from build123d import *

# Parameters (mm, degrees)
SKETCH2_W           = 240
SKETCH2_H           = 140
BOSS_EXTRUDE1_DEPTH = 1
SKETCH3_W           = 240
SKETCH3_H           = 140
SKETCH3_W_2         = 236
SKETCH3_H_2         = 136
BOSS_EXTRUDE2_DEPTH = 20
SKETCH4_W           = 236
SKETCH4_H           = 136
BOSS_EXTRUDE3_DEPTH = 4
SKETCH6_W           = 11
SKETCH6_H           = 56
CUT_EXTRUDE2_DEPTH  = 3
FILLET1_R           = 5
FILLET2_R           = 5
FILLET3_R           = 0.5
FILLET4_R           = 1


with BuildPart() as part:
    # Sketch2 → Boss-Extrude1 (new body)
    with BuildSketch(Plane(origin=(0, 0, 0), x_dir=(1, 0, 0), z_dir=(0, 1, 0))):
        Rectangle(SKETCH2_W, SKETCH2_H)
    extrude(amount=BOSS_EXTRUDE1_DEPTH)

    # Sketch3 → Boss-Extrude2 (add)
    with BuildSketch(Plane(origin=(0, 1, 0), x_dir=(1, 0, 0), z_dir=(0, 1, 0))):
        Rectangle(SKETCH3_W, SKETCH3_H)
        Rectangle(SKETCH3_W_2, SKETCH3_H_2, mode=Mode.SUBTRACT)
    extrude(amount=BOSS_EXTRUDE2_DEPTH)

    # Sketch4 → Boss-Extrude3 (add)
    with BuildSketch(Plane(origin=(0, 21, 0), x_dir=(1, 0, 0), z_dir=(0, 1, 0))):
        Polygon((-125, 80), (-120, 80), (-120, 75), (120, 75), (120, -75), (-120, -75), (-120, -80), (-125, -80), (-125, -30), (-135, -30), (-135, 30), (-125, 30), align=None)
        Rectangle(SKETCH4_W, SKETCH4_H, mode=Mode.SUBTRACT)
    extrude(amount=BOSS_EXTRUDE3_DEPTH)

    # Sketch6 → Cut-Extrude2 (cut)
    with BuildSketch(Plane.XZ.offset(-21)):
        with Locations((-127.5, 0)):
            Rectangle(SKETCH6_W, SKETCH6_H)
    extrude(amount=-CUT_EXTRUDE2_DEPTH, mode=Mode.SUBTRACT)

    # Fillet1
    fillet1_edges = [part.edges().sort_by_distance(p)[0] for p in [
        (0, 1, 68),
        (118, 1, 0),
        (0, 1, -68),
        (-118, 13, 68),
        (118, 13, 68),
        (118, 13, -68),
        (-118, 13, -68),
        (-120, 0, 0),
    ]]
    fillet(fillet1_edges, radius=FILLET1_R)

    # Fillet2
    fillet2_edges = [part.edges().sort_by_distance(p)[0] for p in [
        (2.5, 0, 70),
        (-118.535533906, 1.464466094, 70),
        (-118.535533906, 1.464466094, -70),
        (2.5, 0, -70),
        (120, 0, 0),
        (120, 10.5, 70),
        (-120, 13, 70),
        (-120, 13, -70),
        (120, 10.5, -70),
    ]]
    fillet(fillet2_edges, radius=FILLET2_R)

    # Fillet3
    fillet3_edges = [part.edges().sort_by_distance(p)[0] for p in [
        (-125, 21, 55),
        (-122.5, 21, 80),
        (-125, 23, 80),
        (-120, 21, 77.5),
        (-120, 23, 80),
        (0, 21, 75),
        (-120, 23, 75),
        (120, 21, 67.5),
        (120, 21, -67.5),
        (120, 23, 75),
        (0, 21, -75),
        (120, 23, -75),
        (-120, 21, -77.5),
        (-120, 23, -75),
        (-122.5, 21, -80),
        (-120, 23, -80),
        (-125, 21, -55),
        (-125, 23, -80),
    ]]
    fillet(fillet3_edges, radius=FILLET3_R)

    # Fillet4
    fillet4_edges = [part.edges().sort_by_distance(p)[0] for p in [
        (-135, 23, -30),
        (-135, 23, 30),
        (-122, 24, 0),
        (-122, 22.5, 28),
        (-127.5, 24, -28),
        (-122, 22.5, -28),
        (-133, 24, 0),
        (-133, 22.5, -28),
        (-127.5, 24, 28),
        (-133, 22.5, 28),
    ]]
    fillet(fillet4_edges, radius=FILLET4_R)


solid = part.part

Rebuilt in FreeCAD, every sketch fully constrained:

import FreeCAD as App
import Part
import Sketcher


def edges_at(feature, points):
    """Names of the edges that pass closest to the given points."""
    edges = feature.Shape.Edges
    near = lambda p: min(range(len(edges)), key=lambda i: edges[i].distToShape(Part.Vertex(*p))[0])
    return sorted({f"Edge{near(p) + 1}" for p in points})

doc = App.newDocument("Part")
body = doc.addObject("PartDesign::Body", "Body")

sketch1 = body.newObject("Sketcher::SketchObject", "Sketch")
sketch1.AttachmentSupport = (doc.getObject("XZ_Plane"), [""])
sketch1.MapMode = "FlatFace"
sketch1.addGeometry(Part.LineSegment(App.Vector(-120, -70, 0), App.Vector(-120, 70, 0)), False)
sketch1.addGeometry(Part.LineSegment(App.Vector(-120, 70, 0), App.Vector(120, 70, 0)), False)
sketch1.addGeometry(Part.LineSegment(App.Vector(120, 70, 0), App.Vector(120, -70, 0)), False)
sketch1.addGeometry(Part.LineSegment(App.Vector(120, -70, 0), App.Vector(-120, -70, 0)), False)
sketch1.addConstraint(Sketcher.Constraint("Coincident", 0, 2, 1, 1))
sketch1.addConstraint(Sketcher.Constraint("Coincident", 1, 2, 2, 1))
sketch1.addConstraint(Sketcher.Constraint("Coincident", 2, 2, 3, 1))
sketch1.addConstraint(Sketcher.Constraint("Coincident", 3, 2, 0, 1))
sketch1.addConstraint(Sketcher.Constraint("Vertical", 0))
sketch1.addConstraint(Sketcher.Constraint("Horizontal", 1))
sketch1.addConstraint(Sketcher.Constraint("Vertical", 2))
sketch1.addConstraint(Sketcher.Constraint("Horizontal", 3))
sketch1.addConstraint(Sketcher.Constraint("Symmetric", 0, 2, 2, 2, -1, 1))
sketch1.addConstraint(Sketcher.Constraint("DistanceX", 1, 1, 1, 2, 240.0))
sketch1.addConstraint(Sketcher.Constraint("DistanceY", 0, 1, 0, 2, 140.0))
pad1 = body.newObject("PartDesign::Pad", "Pad")
pad1.Profile = sketch1
pad1.Length = 1
pad1.Reversed = True

sketch2 = body.newObject("Sketcher::SketchObject", "Sketch001")
sketch2.AttachmentSupport = (doc.getObject("XZ_Plane"), [""])
sketch2.MapMode = "FlatFace"
sketch2.AttachmentOffset = App.Placement(App.Vector(0, 0, -1), App.Rotation())
sketch2.addGeometry(Part.LineSegment(App.Vector(-120, -70, 0), App.Vector(-120, 70, 0)), False)
sketch2.addGeometry(Part.LineSegment(App.Vector(-120, 70, 0), App.Vector(120, 70, 0)), False)
sketch2.addGeometry(Part.LineSegment(App.Vector(120, 70, 0), App.Vector(120, -70, 0)), False)
sketch2.addGeometry(Part.LineSegment(App.Vector(120, -70, 0), App.Vector(-120, -70, 0)), False)
sketch2.addGeometry(Part.LineSegment(App.Vector(118, 68, 0), App.Vector(-118, 68, 0)), False)
sketch2.addGeometry(Part.LineSegment(App.Vector(-118, 68, 0), App.Vector(-118, -68, 0)), False)
sketch2.addGeometry(Part.LineSegment(App.Vector(-118, -68, 0), App.Vector(118, -68, 0)), False)
sketch2.addGeometry(Part.LineSegment(App.Vector(118, -68, 0), App.Vector(118, 68, 0)), False)
sketch2.addConstraint(Sketcher.Constraint("Coincident", 0, 2, 1, 1))
sketch2.addConstraint(Sketcher.Constraint("Coincident", 1, 2, 2, 1))
sketch2.addConstraint(Sketcher.Constraint("Coincident", 2, 2, 3, 1))
sketch2.addConstraint(Sketcher.Constraint("Coincident", 3, 2, 0, 1))
sketch2.addConstraint(Sketcher.Constraint("Coincident", 4, 2, 5, 1))
sketch2.addConstraint(Sketcher.Constraint("Coincident", 5, 2, 6, 1))
sketch2.addConstraint(Sketcher.Constraint("Coincident", 6, 2, 7, 1))
sketch2.addConstraint(Sketcher.Constraint("Coincident", 7, 2, 4, 1))
sketch2.addConstraint(Sketcher.Constraint("Vertical", 0))
sketch2.addConstraint(Sketcher.Constraint("Horizontal", 1))
sketch2.addConstraint(Sketcher.Constraint("Vertical", 2))
sketch2.addConstraint(Sketcher.Constraint("Horizontal", 3))
sketch2.addConstraint(Sketcher.Constraint("Horizontal", 4))
sketch2.addConstraint(Sketcher.Constraint("Vertical", 5))
sketch2.addConstraint(Sketcher.Constraint("Horizontal", 6))
sketch2.addConstraint(Sketcher.Constraint("Vertical", 7))
sketch2.addConstraint(Sketcher.Constraint("Symmetric", 0, 2, 2, 2, -1, 1))
sketch2.addConstraint(Sketcher.Constraint("Symmetric", 4, 2, 6, 2, -1, 1))
sketch2.addConstraint(Sketcher.Constraint("DistanceX", 1, 1, 1, 2, 240.0))
sketch2.addConstraint(Sketcher.Constraint("DistanceX", 4, 2, 4, 1, 236.0))
sketch2.addConstraint(Sketcher.Constraint("DistanceY", 0, 1, 0, 2, 140.0))
sketch2.addConstraint(Sketcher.Constraint("DistanceY", 5, 2, 5, 1, 136.0))
pad2 = body.newObject("PartDesign::Pad", "Pad001")
pad2.Profile = sketch2
pad2.Length = 20
pad2.Reversed = True

sketch3 = body.newObject("Sketcher::SketchObject", "Sketch002")
sketch3.AttachmentSupport = (doc.getObject("XZ_Plane"), [""])
sketch3.MapMode = "FlatFace"
sketch3.AttachmentOffset = App.Placement(App.Vector(0, 0, -21), App.Rotation())
sketch3.addGeometry(Part.LineSegment(App.Vector(-120, -80, 0), App.Vector(-125, -80, 0)), False)
sketch3.addGeometry(Part.LineSegment(App.Vector(-125, -80, 0), App.Vector(-125, -30, 0)), False)
sketch3.addGeometry(Part.LineSegment(App.Vector(-125, -30, 0), App.Vector(-135, -30, 0)), False)
sketch3.addGeometry(Part.LineSegment(App.Vector(-135, -30, 0), App.Vector(-135, 30, 0)), False)
sketch3.addGeometry(Part.LineSegment(App.Vector(-135, 30, 0), App.Vector(-125, 30, 0)), False)
sketch3.addGeometry(Part.LineSegment(App.Vector(-125, 30, 0), App.Vector(-125, 80, 0)), False)
sketch3.addGeometry(Part.LineSegment(App.Vector(-125, 80, 0), App.Vector(-120, 80, 0)), False)
sketch3.addGeometry(Part.LineSegment(App.Vector(-120, 80, 0), App.Vector(-120, 75, 0)), False)
sketch3.addGeometry(Part.LineSegment(App.Vector(-120, 75, 0), App.Vector(120, 75, 0)), False)
sketch3.addGeometry(Part.LineSegment(App.Vector(120, 75, 0), App.Vector(120, -75, 0)), False)
sketch3.addGeometry(Part.LineSegment(App.Vector(120, -75, 0), App.Vector(-120, -75, 0)), False)
sketch3.addGeometry(Part.LineSegment(App.Vector(-120, -75, 0), App.Vector(-120, -80, 0)), False)
sketch3.addGeometry(Part.LineSegment(App.Vector(-118, 68, 0), App.Vector(-118, -68, 0)), False)
sketch3.addGeometry(Part.LineSegment(App.Vector(-118, -68, 0), App.Vector(118, -68, 0)), False)
sketch3.addGeometry(Part.LineSegment(App.Vector(118, -68, 0), App.Vector(118, 68, 0)), False)
sketch3.addGeometry(Part.LineSegment(App.Vector(118, 68, 0), App.Vector(-118, 68, 0)), False)
sketch3.addConstraint(Sketcher.Constraint("Coincident", 0, 2, 1, 1))
sketch3.addConstraint(Sketcher.Constraint("Coincident", 1, 2, 2, 1))
sketch3.addConstraint(Sketcher.Constraint("Coincident", 2, 2, 3, 1))
sketch3.addConstraint(Sketcher.Constraint("Coincident", 3, 2, 4, 1))
sketch3.addConstraint(Sketcher.Constraint("Coincident", 4, 2, 5, 1))
sketch3.addConstraint(Sketcher.Constraint("Coincident", 5, 2, 6, 1))
sketch3.addConstraint(Sketcher.Constraint("Coincident", 6, 2, 7, 1))
sketch3.addConstraint(Sketcher.Constraint("Coincident", 7, 2, 8, 1))
sketch3.addConstraint(Sketcher.Constraint("Coincident", 8, 2, 9, 1))
sketch3.addConstraint(Sketcher.Constraint("Coincident", 9, 2, 10, 1))
sketch3.addConstraint(Sketcher.Constraint("Coincident", 10, 2, 11, 1))
sketch3.addConstraint(Sketcher.Constraint("Coincident", 11, 2, 0, 1))
sketch3.addConstraint(Sketcher.Constraint("Coincident", 12, 2, 13, 1))
sketch3.addConstraint(Sketcher.Constraint("Coincident", 13, 2, 14, 1))
sketch3.addConstraint(Sketcher.Constraint("Coincident", 14, 2, 15, 1))
sketch3.addConstraint(Sketcher.Constraint("Coincident", 15, 2, 12, 1))
sketch3.addConstraint(Sketcher.Constraint("Horizontal", 0))
sketch3.addConstraint(Sketcher.Constraint("Vertical", 1))
sketch3.addConstraint(Sketcher.Constraint("Horizontal", 2))
sketch3.addConstraint(Sketcher.Constraint("Vertical", 3))
sketch3.addConstraint(Sketcher.Constraint("Horizontal", 4))
sketch3.addConstraint(Sketcher.Constraint("Vertical", 5))
sketch3.addConstraint(Sketcher.Constraint("Horizontal", 6))
sketch3.addConstraint(Sketcher.Constraint("Vertical", 7))
sketch3.addConstraint(Sketcher.Constraint("Horizontal", 8))
sketch3.addConstraint(Sketcher.Constraint("Vertical", 9))
sketch3.addConstraint(Sketcher.Constraint("Horizontal", 10))
sketch3.addConstraint(Sketcher.Constraint("Vertical", 11))
sketch3.addConstraint(Sketcher.Constraint("Vertical", 12))
sketch3.addConstraint(Sketcher.Constraint("Horizontal", 13))
sketch3.addConstraint(Sketcher.Constraint("Vertical", 14))
sketch3.addConstraint(Sketcher.Constraint("Horizontal", 15))
sketch3.addConstraint(Sketcher.Constraint("Symmetric", 7, 2, 9, 2, -1, 1))
sketch3.addConstraint(Sketcher.Constraint("Symmetric", 12, 2, 14, 2, -1, 1))
sketch3.addConstraint(Sketcher.Constraint("Symmetric", 1, 2, 4, 2, -1))
sketch3.addConstraint(Sketcher.Constraint("Symmetric", 6, 2, 11, 2, -1))
sketch3.addConstraint(Sketcher.Constraint("Equal", 6, 7))
sketch3.addConstraint(Sketcher.Constraint("DistanceX", 0, 2, 0, 1, 5.0))
sketch3.addConstraint(Sketcher.Constraint("DistanceX", 2, 2, 2, 1, 10.0))
sketch3.addConstraint(Sketcher.Constraint("DistanceX", 8, 1, 8, 2, 240.0))
sketch3.addConstraint(Sketcher.Constraint("DistanceX", 13, 1, 13, 2, 236.0))
sketch3.addConstraint(Sketcher.Constraint("DistanceY", 1, 1, 1, 2, 50.0))
sketch3.addConstraint(Sketcher.Constraint("DistanceY", 3, 1, 3, 2, 60.0))
sketch3.addConstraint(Sketcher.Constraint("DistanceY", 12, 2, 12, 1, 136.0))
pad3 = body.newObject("PartDesign::Pad", "Pad002")
pad3.Profile = sketch3
pad3.Length = 4
pad3.Reversed = True

sketch4 = body.newObject("Sketcher::SketchObject", "Sketch003")
sketch4.AttachmentSupport = (doc.getObject("XZ_Plane"), [""])
sketch4.MapMode = "FlatFace"
sketch4.AttachmentOffset = App.Placement(App.Vector(0, 0, -21), App.Rotation())
sketch4.addGeometry(Part.LineSegment(App.Vector(-133, 28, 0), App.Vector(-133, -28, 0)), False)
sketch4.addGeometry(Part.LineSegment(App.Vector(-133, -28, 0), App.Vector(-122, -28, 0)), False)
sketch4.addGeometry(Part.LineSegment(App.Vector(-122, -28, 0), App.Vector(-122, 28, 0)), False)
sketch4.addGeometry(Part.LineSegment(App.Vector(-122, 28, 0), App.Vector(-133, 28, 0)), False)
sketch4.addConstraint(Sketcher.Constraint("Coincident", 0, 2, 1, 1))
sketch4.addConstraint(Sketcher.Constraint("Coincident", 1, 2, 2, 1))
sketch4.addConstraint(Sketcher.Constraint("Coincident", 2, 2, 3, 1))
sketch4.addConstraint(Sketcher.Constraint("Coincident", 3, 2, 0, 1))
sketch4.addConstraint(Sketcher.Constraint("Vertical", 0))
sketch4.addConstraint(Sketcher.Constraint("Horizontal", 1))
sketch4.addConstraint(Sketcher.Constraint("Vertical", 2))
sketch4.addConstraint(Sketcher.Constraint("Horizontal", 3))
sketch4.addConstraint(Sketcher.Constraint("DistanceX", 1, 1, 1, 2, 11.0))
sketch4.addConstraint(Sketcher.Constraint("DistanceY", 0, 2, 0, 1, 56.0))
sketch4.addConstraint(Sketcher.Constraint("DistanceX", 0, 2, -1, 1, 133.0))
sketch4.addConstraint(Sketcher.Constraint("DistanceY", 0, 2, -1, 1, 28.0))
pocket1 = body.newObject("PartDesign::Pocket", "Pocket")
pocket1.Profile = sketch4
pocket1.Length = 3
doc.recompute()

fillet = body.newObject("PartDesign::Fillet", "Fillet")
fillet.Base = (pocket1, edges_at(pocket1, [
    (0, 1, 68),
    (118, 1, 0),
    (0, 1, -68),
    (-118, 13, 68),
    (118, 13, 68),
    (118, 13, -68),
    (-118, 13, -68),
    (-120, 0, 0),
]))
fillet.Radius = 5
doc.recompute()

fillet2 = body.newObject("PartDesign::Fillet", "Fillet001")
fillet2.Base = (fillet, edges_at(fillet, [
    (2.5, 0, 70),
    (-118.536, 1.464, 70),
    (-118.536, 1.464, -70),
    (2.5, 0, -70),
    (120, 0, 0),
    (120, 10.5, 70),
    (-120, 13, 70),
    (-120, 13, -70),
    (120, 10.5, -70),
]))
fillet2.Radius = 5
doc.recompute()

fillet3 = body.newObject("PartDesign::Fillet", "Fillet002")
fillet3.Base = (fillet2, edges_at(fillet2, [
    (-125, 21, 55),
    (-122.5, 21, 80),
    (-125, 23, 80),
    (-120, 21, 77.5),
    (-120, 23, 80),
    (0, 21, 75),
    (-120, 23, 75),
    (120, 21, 70),
    (120, 21, -70),
    (120, 23, 75),
    (0, 21, -75),
    (120, 23, -75),
    (-120, 21, -77.5),
    (-120, 23, -75),
    (-122.5, 21, -80),
    (-120, 23, -80),
    (-125, 21, -55),
    (-125, 23, -80),
]))
fillet3.Radius = 0.5
doc.recompute()

fillet4 = body.newObject("PartDesign::Fillet", "Fillet003")
fillet4.Base = (fillet3, edges_at(fillet3, [
    (-135, 23, -30),
    (-135, 23, 30),
    (-122, 24, 0),
    (-122, 22.5, 28),
    (-127.5, 24, -28),
    (-122, 22.5, -28),
    (-133, 24, 0),
    (-133, 22.5, -28),
    (-127.5, 24, 28),
    (-133, 22.5, 28),
]))
fillet4.Radius = 1

doc.recompute()
